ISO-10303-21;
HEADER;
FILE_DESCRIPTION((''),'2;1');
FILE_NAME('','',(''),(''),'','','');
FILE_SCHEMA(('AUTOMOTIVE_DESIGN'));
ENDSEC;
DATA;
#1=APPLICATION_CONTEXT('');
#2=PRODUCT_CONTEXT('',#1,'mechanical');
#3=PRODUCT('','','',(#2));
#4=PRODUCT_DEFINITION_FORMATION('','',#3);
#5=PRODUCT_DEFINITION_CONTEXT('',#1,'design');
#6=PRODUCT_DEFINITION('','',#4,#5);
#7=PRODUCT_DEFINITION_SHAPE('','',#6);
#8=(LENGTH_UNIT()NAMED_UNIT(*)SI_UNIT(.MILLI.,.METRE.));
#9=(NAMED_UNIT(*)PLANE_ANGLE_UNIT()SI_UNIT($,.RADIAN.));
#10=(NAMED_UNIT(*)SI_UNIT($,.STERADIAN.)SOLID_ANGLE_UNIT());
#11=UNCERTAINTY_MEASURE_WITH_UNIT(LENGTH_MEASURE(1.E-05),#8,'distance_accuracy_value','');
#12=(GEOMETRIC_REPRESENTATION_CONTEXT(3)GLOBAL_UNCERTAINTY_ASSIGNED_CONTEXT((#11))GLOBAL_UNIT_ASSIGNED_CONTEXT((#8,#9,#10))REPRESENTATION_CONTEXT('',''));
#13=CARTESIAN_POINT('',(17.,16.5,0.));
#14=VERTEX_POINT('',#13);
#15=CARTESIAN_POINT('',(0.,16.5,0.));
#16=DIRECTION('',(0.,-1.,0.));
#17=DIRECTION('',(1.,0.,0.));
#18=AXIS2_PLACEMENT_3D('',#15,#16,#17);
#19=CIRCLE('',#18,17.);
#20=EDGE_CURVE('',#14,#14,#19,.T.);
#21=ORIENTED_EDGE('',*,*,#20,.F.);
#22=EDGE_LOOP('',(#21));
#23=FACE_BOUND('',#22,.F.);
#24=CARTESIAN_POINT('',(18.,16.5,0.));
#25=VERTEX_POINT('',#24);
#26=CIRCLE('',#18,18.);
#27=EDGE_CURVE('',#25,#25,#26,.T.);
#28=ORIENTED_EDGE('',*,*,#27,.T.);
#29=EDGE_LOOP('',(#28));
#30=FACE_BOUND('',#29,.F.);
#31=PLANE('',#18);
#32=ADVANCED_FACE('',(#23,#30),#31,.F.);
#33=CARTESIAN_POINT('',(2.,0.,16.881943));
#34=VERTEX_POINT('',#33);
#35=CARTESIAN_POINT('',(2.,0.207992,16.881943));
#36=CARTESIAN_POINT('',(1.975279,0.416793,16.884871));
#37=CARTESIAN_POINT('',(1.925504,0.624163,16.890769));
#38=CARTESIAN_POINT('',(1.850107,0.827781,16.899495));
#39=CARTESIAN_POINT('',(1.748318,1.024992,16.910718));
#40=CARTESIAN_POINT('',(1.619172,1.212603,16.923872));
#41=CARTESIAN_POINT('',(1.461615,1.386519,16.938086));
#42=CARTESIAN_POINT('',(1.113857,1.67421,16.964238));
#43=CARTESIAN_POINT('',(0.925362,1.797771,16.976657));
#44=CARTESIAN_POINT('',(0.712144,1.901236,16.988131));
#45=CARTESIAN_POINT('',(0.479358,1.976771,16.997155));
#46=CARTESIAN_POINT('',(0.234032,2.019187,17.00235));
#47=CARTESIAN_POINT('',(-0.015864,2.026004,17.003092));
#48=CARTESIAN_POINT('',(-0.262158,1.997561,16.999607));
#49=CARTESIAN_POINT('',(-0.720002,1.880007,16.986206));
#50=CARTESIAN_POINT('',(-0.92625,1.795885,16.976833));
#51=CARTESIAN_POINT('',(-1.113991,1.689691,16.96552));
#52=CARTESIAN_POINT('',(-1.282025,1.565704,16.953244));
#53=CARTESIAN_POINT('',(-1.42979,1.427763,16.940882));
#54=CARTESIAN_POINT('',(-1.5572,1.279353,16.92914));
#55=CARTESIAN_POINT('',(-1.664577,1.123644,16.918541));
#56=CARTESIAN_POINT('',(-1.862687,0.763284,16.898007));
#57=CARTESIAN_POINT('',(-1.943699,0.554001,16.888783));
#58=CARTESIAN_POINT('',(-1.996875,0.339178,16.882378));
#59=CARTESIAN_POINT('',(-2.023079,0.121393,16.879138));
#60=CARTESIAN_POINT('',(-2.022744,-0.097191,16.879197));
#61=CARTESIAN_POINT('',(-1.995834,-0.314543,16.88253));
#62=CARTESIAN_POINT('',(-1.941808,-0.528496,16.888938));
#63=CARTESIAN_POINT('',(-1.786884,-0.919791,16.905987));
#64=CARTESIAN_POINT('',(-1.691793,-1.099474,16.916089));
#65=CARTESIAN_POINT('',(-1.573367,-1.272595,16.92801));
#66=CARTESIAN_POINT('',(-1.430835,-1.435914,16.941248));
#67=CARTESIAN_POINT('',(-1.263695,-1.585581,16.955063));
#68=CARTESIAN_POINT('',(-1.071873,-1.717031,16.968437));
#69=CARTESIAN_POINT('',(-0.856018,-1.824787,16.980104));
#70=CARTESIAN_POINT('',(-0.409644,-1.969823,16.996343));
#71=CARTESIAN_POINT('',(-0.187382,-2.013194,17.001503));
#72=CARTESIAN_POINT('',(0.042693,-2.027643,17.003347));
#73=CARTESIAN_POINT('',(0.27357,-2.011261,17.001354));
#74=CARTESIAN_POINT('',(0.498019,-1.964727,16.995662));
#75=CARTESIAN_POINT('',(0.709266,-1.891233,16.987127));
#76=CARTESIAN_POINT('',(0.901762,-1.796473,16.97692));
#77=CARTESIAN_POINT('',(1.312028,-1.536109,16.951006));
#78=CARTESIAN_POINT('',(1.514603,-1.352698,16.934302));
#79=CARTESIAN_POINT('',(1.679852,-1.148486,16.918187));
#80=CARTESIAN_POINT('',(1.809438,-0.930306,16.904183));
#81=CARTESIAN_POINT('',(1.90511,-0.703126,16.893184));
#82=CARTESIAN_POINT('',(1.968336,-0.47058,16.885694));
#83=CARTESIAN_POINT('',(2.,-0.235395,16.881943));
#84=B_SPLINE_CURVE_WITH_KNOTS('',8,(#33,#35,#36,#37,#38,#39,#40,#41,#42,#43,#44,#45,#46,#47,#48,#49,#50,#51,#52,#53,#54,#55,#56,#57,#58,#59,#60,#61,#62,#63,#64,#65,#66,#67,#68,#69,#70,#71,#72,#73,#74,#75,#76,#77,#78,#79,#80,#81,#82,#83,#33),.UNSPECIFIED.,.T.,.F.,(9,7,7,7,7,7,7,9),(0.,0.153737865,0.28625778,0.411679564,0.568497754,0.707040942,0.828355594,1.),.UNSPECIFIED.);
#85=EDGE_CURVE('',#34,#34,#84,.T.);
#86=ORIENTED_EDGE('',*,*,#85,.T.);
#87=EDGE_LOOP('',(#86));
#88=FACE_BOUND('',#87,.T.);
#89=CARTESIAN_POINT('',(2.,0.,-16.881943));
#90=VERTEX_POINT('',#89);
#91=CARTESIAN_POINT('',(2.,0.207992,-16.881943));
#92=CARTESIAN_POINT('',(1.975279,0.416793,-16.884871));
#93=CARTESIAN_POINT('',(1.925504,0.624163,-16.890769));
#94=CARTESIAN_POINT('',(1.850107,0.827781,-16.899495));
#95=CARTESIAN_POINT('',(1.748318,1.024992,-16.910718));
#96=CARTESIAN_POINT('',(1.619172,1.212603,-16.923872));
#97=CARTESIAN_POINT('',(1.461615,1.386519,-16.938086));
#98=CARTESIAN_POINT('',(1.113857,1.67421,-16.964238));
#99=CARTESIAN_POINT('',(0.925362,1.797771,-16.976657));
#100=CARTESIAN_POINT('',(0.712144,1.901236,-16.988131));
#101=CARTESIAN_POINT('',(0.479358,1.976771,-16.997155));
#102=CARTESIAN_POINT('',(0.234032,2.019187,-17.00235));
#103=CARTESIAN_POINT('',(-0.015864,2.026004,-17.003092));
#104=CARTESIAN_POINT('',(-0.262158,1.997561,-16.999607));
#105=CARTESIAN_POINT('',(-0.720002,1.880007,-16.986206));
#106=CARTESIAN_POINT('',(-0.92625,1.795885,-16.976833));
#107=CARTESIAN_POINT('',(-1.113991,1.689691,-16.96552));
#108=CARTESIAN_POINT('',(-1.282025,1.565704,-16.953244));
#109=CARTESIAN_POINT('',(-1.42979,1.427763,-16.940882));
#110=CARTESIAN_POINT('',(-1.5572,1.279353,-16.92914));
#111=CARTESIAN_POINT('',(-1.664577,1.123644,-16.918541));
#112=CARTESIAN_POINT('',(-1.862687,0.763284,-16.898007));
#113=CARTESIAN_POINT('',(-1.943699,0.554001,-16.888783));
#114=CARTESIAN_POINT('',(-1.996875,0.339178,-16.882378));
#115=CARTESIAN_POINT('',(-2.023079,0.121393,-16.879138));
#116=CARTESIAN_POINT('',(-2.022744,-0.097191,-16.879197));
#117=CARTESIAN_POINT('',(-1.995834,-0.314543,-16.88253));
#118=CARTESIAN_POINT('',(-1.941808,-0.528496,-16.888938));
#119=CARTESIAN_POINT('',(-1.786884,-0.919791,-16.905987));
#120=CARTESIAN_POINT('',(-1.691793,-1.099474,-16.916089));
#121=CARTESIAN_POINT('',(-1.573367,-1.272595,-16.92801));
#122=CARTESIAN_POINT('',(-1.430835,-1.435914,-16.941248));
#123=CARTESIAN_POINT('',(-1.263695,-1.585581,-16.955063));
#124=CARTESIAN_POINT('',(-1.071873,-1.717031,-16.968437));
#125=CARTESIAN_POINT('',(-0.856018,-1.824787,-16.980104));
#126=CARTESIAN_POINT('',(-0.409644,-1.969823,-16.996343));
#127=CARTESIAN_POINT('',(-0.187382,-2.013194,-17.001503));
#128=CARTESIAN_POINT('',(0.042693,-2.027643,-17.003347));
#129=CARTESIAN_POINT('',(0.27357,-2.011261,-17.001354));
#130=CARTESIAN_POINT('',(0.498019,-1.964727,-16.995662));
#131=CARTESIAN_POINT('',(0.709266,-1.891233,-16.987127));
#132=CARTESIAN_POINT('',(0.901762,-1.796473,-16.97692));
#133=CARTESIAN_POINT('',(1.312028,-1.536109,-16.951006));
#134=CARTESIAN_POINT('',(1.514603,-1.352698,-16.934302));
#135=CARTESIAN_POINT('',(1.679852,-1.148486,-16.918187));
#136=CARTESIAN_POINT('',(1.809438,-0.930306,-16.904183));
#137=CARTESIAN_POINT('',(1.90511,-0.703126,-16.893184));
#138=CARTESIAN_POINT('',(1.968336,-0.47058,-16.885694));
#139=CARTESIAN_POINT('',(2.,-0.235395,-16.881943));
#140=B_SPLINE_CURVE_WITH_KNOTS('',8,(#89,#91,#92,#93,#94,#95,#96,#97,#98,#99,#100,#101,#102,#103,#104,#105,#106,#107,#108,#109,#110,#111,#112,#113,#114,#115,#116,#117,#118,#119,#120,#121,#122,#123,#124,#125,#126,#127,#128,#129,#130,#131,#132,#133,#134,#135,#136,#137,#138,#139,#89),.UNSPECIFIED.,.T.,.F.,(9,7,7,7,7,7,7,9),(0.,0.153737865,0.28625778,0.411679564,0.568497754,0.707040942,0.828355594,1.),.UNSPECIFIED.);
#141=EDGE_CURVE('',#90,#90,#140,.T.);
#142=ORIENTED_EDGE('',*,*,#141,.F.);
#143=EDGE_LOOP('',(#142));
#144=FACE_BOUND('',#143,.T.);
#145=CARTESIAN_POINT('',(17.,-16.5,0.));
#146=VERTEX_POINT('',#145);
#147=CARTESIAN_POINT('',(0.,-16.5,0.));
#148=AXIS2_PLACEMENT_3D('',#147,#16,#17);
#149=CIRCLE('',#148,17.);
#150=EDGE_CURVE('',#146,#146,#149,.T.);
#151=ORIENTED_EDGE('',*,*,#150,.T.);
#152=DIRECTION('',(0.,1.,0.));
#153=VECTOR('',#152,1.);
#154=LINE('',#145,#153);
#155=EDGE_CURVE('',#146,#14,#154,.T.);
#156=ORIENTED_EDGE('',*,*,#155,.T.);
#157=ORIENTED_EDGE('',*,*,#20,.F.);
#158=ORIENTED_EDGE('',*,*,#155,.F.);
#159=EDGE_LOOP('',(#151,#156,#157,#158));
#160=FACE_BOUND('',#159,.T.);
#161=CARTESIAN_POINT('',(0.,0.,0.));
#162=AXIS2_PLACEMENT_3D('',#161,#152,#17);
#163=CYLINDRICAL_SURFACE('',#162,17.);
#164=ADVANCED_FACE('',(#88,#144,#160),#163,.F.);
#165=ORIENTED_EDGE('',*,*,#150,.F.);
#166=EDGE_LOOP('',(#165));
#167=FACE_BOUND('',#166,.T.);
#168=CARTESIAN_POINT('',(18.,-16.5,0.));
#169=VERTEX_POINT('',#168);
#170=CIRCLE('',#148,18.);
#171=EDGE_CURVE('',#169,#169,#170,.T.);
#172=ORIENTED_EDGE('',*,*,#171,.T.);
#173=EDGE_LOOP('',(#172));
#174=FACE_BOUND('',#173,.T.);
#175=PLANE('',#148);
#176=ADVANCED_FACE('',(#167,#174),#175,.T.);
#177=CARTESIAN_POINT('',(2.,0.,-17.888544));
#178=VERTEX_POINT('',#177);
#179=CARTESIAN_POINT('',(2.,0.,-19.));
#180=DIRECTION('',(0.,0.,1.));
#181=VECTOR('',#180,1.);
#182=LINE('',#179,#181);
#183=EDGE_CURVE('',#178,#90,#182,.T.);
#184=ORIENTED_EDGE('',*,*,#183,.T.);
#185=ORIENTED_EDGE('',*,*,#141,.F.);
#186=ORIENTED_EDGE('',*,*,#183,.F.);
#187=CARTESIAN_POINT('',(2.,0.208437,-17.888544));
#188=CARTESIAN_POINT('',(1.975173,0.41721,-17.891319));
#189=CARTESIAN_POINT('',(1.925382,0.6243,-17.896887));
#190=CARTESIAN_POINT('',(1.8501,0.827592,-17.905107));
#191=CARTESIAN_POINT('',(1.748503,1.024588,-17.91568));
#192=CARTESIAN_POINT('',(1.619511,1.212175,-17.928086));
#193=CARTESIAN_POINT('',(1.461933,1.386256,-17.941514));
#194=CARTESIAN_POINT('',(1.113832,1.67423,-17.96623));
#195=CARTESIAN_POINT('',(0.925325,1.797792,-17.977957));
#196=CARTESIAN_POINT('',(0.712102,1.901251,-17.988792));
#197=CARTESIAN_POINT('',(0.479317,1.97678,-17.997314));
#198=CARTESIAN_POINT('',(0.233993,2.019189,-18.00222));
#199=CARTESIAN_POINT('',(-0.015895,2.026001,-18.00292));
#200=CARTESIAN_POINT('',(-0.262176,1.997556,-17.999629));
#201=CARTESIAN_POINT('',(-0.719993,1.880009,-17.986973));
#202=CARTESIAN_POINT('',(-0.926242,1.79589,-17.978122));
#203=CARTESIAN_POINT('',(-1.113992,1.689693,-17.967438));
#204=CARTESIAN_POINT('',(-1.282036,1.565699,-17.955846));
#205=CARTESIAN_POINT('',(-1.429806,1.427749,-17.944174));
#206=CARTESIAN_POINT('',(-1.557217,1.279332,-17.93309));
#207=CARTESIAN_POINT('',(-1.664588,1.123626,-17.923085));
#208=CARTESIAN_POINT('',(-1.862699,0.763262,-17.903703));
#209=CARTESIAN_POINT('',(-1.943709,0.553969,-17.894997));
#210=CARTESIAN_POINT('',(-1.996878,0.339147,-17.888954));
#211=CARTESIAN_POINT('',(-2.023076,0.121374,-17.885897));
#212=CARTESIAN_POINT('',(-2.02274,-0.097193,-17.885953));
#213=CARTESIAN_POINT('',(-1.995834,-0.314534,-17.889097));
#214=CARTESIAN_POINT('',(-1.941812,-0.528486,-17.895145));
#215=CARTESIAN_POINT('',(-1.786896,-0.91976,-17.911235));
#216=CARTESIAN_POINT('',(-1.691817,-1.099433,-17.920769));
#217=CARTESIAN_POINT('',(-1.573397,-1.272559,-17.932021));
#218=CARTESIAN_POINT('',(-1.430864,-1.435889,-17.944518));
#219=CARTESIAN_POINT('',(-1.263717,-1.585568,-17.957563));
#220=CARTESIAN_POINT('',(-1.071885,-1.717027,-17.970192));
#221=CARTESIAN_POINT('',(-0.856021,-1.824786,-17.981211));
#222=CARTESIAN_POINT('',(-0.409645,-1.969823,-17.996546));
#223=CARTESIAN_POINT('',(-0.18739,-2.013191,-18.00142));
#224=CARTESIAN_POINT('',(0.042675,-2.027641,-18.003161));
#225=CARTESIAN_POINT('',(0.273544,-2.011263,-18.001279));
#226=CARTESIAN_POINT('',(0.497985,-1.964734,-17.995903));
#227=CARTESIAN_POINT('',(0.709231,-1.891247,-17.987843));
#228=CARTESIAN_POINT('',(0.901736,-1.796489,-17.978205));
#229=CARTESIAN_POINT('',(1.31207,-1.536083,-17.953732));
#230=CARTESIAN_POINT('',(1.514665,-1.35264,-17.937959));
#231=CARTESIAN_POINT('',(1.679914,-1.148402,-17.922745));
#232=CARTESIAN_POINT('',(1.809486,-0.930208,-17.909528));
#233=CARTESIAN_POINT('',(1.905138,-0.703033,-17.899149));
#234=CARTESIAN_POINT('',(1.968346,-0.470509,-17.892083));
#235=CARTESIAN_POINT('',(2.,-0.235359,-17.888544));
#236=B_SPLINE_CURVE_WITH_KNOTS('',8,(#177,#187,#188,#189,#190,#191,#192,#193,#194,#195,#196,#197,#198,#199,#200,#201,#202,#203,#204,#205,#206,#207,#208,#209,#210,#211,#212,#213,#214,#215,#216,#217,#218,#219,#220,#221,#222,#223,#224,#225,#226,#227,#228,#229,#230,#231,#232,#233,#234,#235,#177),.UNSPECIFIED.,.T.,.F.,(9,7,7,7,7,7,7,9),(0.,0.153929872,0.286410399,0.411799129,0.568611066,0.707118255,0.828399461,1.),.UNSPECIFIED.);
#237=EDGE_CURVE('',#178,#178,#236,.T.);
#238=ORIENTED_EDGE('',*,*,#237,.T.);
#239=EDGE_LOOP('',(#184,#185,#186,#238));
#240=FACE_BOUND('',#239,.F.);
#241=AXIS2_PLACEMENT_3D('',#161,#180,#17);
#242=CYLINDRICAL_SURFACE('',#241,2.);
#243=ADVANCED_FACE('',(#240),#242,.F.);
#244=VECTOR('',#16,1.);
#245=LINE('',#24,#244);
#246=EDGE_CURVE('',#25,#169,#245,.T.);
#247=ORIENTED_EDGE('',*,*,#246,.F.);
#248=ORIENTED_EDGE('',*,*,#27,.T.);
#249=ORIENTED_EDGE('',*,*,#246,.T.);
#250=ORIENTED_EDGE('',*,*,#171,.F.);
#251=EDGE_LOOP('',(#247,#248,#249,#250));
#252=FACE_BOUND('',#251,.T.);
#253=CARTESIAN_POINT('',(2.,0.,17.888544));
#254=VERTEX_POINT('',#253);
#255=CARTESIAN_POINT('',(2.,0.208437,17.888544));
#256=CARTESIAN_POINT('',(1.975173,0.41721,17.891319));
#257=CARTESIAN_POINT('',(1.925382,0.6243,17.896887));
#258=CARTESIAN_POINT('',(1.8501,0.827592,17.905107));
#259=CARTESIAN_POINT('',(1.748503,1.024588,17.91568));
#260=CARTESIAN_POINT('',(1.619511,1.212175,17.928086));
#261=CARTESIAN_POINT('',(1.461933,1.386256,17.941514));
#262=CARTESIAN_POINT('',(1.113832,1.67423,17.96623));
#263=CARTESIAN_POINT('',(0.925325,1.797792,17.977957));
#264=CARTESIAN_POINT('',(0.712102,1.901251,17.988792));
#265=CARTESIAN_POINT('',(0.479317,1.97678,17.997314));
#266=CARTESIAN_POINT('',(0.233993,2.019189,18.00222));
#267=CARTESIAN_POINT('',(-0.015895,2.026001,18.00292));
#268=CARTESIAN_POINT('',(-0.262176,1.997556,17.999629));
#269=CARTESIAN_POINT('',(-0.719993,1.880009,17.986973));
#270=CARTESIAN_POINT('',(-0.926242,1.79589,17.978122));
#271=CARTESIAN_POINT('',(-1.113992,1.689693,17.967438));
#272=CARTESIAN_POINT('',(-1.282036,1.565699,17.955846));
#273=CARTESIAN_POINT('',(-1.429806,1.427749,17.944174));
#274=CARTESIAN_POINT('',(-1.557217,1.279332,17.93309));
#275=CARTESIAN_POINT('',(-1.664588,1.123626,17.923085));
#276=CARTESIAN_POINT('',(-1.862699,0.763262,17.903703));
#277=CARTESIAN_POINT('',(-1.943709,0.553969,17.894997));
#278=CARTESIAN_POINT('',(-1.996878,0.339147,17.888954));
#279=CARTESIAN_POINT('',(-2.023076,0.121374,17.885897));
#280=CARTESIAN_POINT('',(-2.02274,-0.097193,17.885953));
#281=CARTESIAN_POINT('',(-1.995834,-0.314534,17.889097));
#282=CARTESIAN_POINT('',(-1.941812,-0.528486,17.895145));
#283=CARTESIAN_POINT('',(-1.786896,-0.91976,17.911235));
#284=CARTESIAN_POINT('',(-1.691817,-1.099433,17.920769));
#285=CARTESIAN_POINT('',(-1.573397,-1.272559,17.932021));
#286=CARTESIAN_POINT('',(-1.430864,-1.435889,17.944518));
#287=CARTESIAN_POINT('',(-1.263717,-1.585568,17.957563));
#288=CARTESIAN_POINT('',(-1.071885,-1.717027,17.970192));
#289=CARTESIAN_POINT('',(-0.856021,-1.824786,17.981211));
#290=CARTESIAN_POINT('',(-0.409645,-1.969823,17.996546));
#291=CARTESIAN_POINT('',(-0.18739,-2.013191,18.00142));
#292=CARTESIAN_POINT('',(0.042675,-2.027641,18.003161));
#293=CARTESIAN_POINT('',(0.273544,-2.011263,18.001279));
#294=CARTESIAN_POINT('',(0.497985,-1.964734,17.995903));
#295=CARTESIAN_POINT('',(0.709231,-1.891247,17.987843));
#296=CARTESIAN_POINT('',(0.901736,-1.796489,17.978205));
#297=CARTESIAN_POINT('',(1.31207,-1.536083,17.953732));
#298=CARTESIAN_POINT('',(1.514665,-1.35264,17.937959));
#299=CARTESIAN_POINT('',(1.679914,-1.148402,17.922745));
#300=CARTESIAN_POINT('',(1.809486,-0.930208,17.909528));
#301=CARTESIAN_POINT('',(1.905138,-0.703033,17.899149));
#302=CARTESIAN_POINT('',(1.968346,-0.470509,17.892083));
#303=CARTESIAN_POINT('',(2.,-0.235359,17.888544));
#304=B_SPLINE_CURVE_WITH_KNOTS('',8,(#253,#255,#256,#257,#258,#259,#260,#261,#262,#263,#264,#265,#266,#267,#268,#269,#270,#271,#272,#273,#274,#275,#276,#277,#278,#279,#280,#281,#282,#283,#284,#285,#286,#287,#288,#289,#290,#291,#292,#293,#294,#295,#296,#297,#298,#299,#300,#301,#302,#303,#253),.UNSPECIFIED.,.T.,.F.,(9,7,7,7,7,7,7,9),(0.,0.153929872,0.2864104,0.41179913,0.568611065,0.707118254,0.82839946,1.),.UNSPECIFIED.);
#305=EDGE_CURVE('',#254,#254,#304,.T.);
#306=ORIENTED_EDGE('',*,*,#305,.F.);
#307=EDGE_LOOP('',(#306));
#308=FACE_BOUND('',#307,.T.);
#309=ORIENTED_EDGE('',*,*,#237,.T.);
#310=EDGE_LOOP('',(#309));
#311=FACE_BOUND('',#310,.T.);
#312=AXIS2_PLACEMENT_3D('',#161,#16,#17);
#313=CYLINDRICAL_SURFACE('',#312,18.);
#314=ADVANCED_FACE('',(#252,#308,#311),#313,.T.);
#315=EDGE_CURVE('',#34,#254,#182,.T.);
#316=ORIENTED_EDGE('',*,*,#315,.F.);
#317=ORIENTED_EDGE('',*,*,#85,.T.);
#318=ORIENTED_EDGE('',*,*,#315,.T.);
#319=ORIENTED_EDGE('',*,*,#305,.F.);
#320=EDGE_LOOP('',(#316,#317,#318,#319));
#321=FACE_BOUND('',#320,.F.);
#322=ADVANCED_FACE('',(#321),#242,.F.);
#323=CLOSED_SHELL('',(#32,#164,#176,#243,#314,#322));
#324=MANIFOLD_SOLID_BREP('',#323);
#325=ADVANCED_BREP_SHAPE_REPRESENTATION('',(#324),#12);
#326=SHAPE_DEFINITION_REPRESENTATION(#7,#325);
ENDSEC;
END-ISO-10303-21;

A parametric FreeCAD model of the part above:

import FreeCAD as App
import Part
import Sketcher

doc = App.newDocument("Part")
body = doc.addObject("PartDesign::Body", "Body")

# Sketch on XZ plane
sketch1 = body.newObject("Sketcher::SketchObject", "Sketch")
sketch1.AttachmentSupport = (doc.getObject("XZ_Plane"), [""])
sketch1.MapMode = "FlatFace"
sketch1.addGeometry([
    Part.Circle(App.Vector(0, 0, 0), App.Vector(0, 0, 1), 18),
    Part.Circle(App.Vector(0, 0, 0), App.Vector(0, 0, 1), 17),
], False)
sketch1.addConstraint([
    Sketcher.Constraint("Coincident", 0, 3, -1, 1),
    Sketcher.Constraint("Coincident", 1, 3, -1, 1),
    Sketcher.Constraint("Diameter", 0, 36.0),
    Sketcher.Constraint("Diameter", 1, 34.0),
])
pad1 = body.newObject("PartDesign::Pad", "Pad")
pad1.Profile = sketch1
pad1.Length = 33
pad1.Midplane = True

# Sketch on XY plane
sketch2 = body.newObject("Sketcher::SketchObject", "Sketch001")
sketch2.AttachmentSupport = (doc.getObject("XY_Plane"), [""])
sketch2.MapMode = "FlatFace"
sketch2.addGeometry(Part.Circle(App.Vector(0, 0, 0), App.Vector(0, 0, 1), 2), False)
sketch2.addConstraint([
    Sketcher.Constraint("Coincident", 0, 3, -1, 1),
    Sketcher.Constraint("Diameter", 0, 4.0),
])
pocket1 = body.newObject("PartDesign::Pocket", "Pocket")
pocket1.Profile = sketch2
pocket1.Length = 38
pocket1.Midplane = True

doc.recompute()
